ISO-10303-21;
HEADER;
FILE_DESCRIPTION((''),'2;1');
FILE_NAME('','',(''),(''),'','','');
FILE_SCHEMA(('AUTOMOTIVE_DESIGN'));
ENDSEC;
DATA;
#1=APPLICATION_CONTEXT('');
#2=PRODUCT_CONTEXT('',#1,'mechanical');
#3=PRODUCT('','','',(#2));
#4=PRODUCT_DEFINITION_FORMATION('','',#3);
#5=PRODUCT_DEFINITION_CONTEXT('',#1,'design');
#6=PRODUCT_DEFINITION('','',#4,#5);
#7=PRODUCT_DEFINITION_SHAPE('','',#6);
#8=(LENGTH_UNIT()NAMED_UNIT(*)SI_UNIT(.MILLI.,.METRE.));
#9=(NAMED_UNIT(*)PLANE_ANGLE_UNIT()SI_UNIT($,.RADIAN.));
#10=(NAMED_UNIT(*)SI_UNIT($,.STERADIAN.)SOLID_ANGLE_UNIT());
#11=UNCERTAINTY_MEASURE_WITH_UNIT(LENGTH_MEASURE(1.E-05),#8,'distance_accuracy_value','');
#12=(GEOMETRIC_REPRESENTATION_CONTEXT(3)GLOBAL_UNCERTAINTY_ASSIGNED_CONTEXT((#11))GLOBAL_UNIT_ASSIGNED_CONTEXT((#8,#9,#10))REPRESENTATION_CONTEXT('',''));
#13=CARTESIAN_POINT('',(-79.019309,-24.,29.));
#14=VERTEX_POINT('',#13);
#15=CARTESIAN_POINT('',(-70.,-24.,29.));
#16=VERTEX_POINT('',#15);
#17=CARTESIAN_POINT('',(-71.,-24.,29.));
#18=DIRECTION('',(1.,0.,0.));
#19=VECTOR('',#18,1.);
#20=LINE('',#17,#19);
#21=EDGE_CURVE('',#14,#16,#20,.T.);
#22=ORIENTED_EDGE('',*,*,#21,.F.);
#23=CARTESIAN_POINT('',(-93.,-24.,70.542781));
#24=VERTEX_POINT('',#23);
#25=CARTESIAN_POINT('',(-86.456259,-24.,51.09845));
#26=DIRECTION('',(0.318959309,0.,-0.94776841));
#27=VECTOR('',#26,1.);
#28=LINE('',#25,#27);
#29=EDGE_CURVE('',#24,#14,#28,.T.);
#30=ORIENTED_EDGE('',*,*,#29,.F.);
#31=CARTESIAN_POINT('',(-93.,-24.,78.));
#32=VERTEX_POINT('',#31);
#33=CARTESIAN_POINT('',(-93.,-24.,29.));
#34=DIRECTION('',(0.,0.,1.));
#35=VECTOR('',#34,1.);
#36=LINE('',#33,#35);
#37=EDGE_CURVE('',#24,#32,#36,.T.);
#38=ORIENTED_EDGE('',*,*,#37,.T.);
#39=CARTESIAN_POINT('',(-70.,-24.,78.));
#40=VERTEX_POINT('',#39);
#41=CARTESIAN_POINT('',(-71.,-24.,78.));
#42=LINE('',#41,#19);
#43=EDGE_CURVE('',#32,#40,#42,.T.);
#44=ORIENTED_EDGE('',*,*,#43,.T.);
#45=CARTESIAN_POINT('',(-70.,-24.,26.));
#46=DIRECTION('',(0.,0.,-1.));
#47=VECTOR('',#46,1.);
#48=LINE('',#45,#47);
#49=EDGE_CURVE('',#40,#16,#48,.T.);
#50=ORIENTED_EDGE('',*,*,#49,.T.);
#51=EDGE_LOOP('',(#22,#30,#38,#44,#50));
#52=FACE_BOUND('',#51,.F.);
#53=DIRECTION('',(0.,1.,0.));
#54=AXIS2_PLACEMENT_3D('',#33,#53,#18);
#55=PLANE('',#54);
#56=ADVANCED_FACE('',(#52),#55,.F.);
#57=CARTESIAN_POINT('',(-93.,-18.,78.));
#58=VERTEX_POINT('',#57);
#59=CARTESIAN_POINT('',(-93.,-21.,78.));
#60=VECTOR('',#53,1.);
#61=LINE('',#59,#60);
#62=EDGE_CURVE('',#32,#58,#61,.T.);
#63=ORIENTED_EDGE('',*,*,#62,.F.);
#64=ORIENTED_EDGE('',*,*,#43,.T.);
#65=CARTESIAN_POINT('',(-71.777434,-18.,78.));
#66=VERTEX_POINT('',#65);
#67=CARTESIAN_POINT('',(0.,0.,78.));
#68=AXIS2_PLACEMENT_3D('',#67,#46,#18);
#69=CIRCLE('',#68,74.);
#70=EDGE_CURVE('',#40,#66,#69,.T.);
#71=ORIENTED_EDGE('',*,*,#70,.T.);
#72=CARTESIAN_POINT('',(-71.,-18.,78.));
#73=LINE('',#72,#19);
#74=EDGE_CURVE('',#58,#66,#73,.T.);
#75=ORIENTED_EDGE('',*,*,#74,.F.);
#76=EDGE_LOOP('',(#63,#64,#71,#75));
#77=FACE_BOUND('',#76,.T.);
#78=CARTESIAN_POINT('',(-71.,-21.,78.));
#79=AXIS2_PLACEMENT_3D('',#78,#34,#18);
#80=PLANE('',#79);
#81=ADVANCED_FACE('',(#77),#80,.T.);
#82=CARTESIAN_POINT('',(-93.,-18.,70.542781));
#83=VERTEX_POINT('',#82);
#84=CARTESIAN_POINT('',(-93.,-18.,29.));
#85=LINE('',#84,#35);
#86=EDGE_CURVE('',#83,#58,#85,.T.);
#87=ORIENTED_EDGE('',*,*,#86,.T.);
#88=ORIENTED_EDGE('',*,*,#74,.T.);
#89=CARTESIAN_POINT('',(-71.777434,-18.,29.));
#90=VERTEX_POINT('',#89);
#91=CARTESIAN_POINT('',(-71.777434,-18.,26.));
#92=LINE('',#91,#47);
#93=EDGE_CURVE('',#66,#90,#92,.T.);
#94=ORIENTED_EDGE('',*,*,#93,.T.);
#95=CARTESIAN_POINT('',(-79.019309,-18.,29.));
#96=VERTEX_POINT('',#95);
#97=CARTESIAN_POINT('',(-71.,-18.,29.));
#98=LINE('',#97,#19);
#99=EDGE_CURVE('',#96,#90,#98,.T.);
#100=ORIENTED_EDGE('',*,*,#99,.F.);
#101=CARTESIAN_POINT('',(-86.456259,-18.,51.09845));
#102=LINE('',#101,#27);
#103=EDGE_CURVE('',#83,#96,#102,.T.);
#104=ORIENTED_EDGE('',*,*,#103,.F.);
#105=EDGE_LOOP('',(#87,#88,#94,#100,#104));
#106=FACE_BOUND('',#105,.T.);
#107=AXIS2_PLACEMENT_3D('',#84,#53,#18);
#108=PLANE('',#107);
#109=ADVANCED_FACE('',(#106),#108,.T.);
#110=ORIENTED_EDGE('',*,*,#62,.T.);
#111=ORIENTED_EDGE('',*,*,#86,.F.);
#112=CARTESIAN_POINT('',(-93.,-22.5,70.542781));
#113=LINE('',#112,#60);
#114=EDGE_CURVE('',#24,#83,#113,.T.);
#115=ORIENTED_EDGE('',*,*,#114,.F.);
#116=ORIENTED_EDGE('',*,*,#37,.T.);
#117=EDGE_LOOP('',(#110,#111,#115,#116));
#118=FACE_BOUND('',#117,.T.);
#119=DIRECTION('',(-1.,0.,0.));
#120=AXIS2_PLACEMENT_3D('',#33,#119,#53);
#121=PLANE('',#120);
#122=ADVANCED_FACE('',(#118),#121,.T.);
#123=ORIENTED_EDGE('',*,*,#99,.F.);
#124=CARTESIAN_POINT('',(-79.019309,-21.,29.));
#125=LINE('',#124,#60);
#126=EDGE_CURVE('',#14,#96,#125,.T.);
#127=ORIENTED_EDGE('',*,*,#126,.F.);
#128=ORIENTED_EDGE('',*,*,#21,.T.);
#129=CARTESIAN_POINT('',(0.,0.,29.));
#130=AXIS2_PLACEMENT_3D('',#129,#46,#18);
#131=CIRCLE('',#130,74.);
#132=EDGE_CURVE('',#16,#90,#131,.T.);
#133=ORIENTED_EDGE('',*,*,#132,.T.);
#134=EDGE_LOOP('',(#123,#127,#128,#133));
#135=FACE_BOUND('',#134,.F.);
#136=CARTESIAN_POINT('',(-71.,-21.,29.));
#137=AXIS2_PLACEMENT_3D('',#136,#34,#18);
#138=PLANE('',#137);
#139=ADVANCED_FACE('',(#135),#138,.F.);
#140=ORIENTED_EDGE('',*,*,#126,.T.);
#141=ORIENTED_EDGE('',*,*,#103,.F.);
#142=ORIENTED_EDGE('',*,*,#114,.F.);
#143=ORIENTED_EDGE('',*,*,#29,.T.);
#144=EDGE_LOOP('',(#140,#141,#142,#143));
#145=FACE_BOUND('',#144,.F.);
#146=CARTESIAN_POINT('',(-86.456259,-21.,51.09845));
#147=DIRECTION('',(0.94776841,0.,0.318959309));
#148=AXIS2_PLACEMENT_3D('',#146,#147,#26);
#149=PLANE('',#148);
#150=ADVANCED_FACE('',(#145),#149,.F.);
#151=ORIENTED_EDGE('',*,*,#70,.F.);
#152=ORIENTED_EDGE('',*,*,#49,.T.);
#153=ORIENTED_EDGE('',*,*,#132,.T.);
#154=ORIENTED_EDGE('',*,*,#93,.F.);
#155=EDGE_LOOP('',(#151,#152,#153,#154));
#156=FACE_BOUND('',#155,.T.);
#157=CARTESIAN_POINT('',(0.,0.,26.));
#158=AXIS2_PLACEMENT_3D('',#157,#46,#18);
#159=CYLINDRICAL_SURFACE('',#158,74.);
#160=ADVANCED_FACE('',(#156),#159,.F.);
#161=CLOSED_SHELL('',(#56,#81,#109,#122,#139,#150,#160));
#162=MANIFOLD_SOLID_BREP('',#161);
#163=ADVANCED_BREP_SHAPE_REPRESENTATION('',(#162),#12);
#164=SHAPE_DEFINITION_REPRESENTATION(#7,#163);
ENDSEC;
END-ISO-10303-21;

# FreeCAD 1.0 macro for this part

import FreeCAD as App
import Part
import Sketcher

doc = App.newDocument("Part")
params = doc.addObject("Spreadsheet::Sheet", "Params")
for row, (alias, value) in enumerate([
    ("sketch1_diameter", "148 mm"),
    ("pad1_length", "60 mm"),
    ("sketch2_width", "80 mm"),
    ("sketch2_height", "6 mm"),
    ("pad2_length", "20 mm"),
    ("sketch3_width", "44 mm"),
    ("sketch3_height", "6 mm"),
    ("pad3_length", "49 mm"),
], start=1):
    params.set(f"A{row}", alias)
    params.set(f"B{row}", "=" + value)
    params.setAlias(f"B{row}", alias)

body = doc.addObject("PartDesign::Body", "Body")

# Sketch on XY plane
sketch1 = body.newObject("Sketcher::SketchObject", "Sketch")
sketch1.AttachmentSupport = (doc.getObject("XY_Plane"), [""])
sketch1.MapMode = "FlatFace"
sketch1.AttachmentOffset = App.Placement(App.Vector(0, 0, 26), App.Rotation())
sketch1.addGeometry(Part.Circle(App.Vector(0, 0, 0), App.Vector(0, 0, 1), 74), False)
sketch1.addConstraint([
    Sketcher.Constraint("Coincident", 0, 3, -1, 1),
    Sketcher.Constraint("Diameter", 0, 148.0),
])
sketch1.setExpression("Constraints[1]", "Params.sketch1_diameter")
pad1 = body.newObject("PartDesign::Pad", "Pad")
pad1.Profile = sketch1
pad1.setExpression("Length", "Params.pad1_length")
body2 = doc.addObject("PartDesign::Body", "Body001")

# Sketch on XY plane
sketch2 = body2.newObject("Sketcher::SketchObject", "Sketch001")
sketch2.AttachmentSupport = (doc.getObject("XY_Plane001"), [""])
sketch2.MapMode = "FlatFace"
sketch2.addGeometry([
    Part.LineSegment(App.Vector(0, 6, 0), App.Vector(0, 0, 0)),
    Part.LineSegment(App.Vector(0, 0, 0), App.Vector(80, 0, 0)),
    Part.LineSegment(App.Vector(80, 0, 0), App.Vector(80, 6, 0)),
    Part.LineSegment(App.Vector(80, 6, 0), App.Vector(0, 6, 0)),
], False)
sketch2.addConstraint([
    Sketcher.Constraint("Coincident", 0, 2, 1, 1),
    Sketcher.Constraint("Coincident", 1, 2, 2, 1),
    Sketcher.Constraint("Coincident", 2, 2, 3, 1),
    Sketcher.Constraint("Coincident", 3, 2, 0, 1),
    Sketcher.Constraint("Vertical", 0),
    Sketcher.Constraint("Horizontal", 1),
    Sketcher.Constraint("Vertical", 2),
    Sketcher.Constraint("Horizontal", 3),
    Sketcher.Constraint("Coincident", 0, 2, -1, 1),
    Sketcher.Constraint("DistanceX", 1, 1, 1, 2, 80.0),
    Sketcher.Constraint("DistanceY", 0, 2, 0, 1, 6.0),
])
sketch2.setExpression("Constraints[9]", "Params.sketch2_width")
sketch2.setExpression("Constraints[10]", "Params.sketch2_height")
pad2 = body2.newObject("PartDesign::Pad", "Pad001")
pad2.Profile = sketch2
pad2.setExpression("Length", "Params.pad2_length")
body3 = doc.addObject("PartDesign::Body", "Body002")
doc.recompute()

body2.Placement = App.Placement(App.Vector(-118.17, -24, 82.63), App.Rotation(App.Vector(0, 1, 0), 71.4))
boolean = body3.newObject("PartDesign::Boolean", "Boolean")
boolean.Type = "Fuse"
boolean.addObjects([body2])
body4 = doc.addObject("PartDesign::Body", "Body003")

# Sketch on XY plane
sketch3 = body4.newObject("Sketcher::SketchObject", "Sketch002")
sketch3.AttachmentSupport = (doc.getObject("XY_Plane003"), [""])
sketch3.MapMode = "FlatFace"
sketch3.AttachmentOffset = App.Placement(App.Vector(0, 0, 29), App.Rotation())
sketch3.addGeometry([
    Part.LineSegment(App.Vector(-93, -18, 0), App.Vector(-93, -24, 0)),
    Part.LineSegment(App.Vector(-93, -24, 0), App.Vector(-49, -24, 0)),
    Part.LineSegment(App.Vector(-49, -24, 0), App.Vector(-49, -18, 0)),
    Part.LineSegment(App.Vector(-49, -18, 0), App.Vector(-93, -18, 0)),
], False)
sketch3.addConstraint([
    Sketcher.Constraint("Coincident", 0, 2, 1, 1),
    Sketcher.Constraint("Coincident", 1, 2, 2, 1),
    Sketcher.Constraint("Coincident", 2, 2, 3, 1),
    Sketcher.Constraint("Coincident", 3, 2, 0, 1),
    Sketcher.Constraint("Vertical", 0),
    Sketcher.Constraint("Horizontal", 1),
    Sketcher.Constraint("Vertical", 2),
    Sketcher.Constraint("Horizontal", 3),
    Sketcher.Constraint("DistanceX", 1, 1, 1, 2, 44.0),
    Sketcher.Constraint("DistanceY", 0, 2, 0, 1, 6.0),
    Sketcher.Constraint("DistanceX", 0, 2, -1, 1, 93.0),
    Sketcher.Constraint("DistanceY", 0, 2, -1, 1, 24.0),
])
sketch3.setExpression("Constraints[8]", "Params.sketch3_width")
sketch3.setExpression("Constraints[9]", "Params.sketch3_height")
pad3 = body4.newObject("PartDesign::Pad", "Pad002")
pad3.Profile = sketch3
pad3.setExpression("Length", "Params.pad3_length")
doc.recompute()

boolean2 = body4.newObject("PartDesign::Boolean", "Boolean001")
boolean2.Type = "Cut"
boolean2.addObjects([body3])
doc.recompute()

boolean3 = body4.newObject("PartDesign::Boolean", "Boolean002")
boolean3.Type = "Cut"
boolean3.addObjects([body])

doc.recompute()
